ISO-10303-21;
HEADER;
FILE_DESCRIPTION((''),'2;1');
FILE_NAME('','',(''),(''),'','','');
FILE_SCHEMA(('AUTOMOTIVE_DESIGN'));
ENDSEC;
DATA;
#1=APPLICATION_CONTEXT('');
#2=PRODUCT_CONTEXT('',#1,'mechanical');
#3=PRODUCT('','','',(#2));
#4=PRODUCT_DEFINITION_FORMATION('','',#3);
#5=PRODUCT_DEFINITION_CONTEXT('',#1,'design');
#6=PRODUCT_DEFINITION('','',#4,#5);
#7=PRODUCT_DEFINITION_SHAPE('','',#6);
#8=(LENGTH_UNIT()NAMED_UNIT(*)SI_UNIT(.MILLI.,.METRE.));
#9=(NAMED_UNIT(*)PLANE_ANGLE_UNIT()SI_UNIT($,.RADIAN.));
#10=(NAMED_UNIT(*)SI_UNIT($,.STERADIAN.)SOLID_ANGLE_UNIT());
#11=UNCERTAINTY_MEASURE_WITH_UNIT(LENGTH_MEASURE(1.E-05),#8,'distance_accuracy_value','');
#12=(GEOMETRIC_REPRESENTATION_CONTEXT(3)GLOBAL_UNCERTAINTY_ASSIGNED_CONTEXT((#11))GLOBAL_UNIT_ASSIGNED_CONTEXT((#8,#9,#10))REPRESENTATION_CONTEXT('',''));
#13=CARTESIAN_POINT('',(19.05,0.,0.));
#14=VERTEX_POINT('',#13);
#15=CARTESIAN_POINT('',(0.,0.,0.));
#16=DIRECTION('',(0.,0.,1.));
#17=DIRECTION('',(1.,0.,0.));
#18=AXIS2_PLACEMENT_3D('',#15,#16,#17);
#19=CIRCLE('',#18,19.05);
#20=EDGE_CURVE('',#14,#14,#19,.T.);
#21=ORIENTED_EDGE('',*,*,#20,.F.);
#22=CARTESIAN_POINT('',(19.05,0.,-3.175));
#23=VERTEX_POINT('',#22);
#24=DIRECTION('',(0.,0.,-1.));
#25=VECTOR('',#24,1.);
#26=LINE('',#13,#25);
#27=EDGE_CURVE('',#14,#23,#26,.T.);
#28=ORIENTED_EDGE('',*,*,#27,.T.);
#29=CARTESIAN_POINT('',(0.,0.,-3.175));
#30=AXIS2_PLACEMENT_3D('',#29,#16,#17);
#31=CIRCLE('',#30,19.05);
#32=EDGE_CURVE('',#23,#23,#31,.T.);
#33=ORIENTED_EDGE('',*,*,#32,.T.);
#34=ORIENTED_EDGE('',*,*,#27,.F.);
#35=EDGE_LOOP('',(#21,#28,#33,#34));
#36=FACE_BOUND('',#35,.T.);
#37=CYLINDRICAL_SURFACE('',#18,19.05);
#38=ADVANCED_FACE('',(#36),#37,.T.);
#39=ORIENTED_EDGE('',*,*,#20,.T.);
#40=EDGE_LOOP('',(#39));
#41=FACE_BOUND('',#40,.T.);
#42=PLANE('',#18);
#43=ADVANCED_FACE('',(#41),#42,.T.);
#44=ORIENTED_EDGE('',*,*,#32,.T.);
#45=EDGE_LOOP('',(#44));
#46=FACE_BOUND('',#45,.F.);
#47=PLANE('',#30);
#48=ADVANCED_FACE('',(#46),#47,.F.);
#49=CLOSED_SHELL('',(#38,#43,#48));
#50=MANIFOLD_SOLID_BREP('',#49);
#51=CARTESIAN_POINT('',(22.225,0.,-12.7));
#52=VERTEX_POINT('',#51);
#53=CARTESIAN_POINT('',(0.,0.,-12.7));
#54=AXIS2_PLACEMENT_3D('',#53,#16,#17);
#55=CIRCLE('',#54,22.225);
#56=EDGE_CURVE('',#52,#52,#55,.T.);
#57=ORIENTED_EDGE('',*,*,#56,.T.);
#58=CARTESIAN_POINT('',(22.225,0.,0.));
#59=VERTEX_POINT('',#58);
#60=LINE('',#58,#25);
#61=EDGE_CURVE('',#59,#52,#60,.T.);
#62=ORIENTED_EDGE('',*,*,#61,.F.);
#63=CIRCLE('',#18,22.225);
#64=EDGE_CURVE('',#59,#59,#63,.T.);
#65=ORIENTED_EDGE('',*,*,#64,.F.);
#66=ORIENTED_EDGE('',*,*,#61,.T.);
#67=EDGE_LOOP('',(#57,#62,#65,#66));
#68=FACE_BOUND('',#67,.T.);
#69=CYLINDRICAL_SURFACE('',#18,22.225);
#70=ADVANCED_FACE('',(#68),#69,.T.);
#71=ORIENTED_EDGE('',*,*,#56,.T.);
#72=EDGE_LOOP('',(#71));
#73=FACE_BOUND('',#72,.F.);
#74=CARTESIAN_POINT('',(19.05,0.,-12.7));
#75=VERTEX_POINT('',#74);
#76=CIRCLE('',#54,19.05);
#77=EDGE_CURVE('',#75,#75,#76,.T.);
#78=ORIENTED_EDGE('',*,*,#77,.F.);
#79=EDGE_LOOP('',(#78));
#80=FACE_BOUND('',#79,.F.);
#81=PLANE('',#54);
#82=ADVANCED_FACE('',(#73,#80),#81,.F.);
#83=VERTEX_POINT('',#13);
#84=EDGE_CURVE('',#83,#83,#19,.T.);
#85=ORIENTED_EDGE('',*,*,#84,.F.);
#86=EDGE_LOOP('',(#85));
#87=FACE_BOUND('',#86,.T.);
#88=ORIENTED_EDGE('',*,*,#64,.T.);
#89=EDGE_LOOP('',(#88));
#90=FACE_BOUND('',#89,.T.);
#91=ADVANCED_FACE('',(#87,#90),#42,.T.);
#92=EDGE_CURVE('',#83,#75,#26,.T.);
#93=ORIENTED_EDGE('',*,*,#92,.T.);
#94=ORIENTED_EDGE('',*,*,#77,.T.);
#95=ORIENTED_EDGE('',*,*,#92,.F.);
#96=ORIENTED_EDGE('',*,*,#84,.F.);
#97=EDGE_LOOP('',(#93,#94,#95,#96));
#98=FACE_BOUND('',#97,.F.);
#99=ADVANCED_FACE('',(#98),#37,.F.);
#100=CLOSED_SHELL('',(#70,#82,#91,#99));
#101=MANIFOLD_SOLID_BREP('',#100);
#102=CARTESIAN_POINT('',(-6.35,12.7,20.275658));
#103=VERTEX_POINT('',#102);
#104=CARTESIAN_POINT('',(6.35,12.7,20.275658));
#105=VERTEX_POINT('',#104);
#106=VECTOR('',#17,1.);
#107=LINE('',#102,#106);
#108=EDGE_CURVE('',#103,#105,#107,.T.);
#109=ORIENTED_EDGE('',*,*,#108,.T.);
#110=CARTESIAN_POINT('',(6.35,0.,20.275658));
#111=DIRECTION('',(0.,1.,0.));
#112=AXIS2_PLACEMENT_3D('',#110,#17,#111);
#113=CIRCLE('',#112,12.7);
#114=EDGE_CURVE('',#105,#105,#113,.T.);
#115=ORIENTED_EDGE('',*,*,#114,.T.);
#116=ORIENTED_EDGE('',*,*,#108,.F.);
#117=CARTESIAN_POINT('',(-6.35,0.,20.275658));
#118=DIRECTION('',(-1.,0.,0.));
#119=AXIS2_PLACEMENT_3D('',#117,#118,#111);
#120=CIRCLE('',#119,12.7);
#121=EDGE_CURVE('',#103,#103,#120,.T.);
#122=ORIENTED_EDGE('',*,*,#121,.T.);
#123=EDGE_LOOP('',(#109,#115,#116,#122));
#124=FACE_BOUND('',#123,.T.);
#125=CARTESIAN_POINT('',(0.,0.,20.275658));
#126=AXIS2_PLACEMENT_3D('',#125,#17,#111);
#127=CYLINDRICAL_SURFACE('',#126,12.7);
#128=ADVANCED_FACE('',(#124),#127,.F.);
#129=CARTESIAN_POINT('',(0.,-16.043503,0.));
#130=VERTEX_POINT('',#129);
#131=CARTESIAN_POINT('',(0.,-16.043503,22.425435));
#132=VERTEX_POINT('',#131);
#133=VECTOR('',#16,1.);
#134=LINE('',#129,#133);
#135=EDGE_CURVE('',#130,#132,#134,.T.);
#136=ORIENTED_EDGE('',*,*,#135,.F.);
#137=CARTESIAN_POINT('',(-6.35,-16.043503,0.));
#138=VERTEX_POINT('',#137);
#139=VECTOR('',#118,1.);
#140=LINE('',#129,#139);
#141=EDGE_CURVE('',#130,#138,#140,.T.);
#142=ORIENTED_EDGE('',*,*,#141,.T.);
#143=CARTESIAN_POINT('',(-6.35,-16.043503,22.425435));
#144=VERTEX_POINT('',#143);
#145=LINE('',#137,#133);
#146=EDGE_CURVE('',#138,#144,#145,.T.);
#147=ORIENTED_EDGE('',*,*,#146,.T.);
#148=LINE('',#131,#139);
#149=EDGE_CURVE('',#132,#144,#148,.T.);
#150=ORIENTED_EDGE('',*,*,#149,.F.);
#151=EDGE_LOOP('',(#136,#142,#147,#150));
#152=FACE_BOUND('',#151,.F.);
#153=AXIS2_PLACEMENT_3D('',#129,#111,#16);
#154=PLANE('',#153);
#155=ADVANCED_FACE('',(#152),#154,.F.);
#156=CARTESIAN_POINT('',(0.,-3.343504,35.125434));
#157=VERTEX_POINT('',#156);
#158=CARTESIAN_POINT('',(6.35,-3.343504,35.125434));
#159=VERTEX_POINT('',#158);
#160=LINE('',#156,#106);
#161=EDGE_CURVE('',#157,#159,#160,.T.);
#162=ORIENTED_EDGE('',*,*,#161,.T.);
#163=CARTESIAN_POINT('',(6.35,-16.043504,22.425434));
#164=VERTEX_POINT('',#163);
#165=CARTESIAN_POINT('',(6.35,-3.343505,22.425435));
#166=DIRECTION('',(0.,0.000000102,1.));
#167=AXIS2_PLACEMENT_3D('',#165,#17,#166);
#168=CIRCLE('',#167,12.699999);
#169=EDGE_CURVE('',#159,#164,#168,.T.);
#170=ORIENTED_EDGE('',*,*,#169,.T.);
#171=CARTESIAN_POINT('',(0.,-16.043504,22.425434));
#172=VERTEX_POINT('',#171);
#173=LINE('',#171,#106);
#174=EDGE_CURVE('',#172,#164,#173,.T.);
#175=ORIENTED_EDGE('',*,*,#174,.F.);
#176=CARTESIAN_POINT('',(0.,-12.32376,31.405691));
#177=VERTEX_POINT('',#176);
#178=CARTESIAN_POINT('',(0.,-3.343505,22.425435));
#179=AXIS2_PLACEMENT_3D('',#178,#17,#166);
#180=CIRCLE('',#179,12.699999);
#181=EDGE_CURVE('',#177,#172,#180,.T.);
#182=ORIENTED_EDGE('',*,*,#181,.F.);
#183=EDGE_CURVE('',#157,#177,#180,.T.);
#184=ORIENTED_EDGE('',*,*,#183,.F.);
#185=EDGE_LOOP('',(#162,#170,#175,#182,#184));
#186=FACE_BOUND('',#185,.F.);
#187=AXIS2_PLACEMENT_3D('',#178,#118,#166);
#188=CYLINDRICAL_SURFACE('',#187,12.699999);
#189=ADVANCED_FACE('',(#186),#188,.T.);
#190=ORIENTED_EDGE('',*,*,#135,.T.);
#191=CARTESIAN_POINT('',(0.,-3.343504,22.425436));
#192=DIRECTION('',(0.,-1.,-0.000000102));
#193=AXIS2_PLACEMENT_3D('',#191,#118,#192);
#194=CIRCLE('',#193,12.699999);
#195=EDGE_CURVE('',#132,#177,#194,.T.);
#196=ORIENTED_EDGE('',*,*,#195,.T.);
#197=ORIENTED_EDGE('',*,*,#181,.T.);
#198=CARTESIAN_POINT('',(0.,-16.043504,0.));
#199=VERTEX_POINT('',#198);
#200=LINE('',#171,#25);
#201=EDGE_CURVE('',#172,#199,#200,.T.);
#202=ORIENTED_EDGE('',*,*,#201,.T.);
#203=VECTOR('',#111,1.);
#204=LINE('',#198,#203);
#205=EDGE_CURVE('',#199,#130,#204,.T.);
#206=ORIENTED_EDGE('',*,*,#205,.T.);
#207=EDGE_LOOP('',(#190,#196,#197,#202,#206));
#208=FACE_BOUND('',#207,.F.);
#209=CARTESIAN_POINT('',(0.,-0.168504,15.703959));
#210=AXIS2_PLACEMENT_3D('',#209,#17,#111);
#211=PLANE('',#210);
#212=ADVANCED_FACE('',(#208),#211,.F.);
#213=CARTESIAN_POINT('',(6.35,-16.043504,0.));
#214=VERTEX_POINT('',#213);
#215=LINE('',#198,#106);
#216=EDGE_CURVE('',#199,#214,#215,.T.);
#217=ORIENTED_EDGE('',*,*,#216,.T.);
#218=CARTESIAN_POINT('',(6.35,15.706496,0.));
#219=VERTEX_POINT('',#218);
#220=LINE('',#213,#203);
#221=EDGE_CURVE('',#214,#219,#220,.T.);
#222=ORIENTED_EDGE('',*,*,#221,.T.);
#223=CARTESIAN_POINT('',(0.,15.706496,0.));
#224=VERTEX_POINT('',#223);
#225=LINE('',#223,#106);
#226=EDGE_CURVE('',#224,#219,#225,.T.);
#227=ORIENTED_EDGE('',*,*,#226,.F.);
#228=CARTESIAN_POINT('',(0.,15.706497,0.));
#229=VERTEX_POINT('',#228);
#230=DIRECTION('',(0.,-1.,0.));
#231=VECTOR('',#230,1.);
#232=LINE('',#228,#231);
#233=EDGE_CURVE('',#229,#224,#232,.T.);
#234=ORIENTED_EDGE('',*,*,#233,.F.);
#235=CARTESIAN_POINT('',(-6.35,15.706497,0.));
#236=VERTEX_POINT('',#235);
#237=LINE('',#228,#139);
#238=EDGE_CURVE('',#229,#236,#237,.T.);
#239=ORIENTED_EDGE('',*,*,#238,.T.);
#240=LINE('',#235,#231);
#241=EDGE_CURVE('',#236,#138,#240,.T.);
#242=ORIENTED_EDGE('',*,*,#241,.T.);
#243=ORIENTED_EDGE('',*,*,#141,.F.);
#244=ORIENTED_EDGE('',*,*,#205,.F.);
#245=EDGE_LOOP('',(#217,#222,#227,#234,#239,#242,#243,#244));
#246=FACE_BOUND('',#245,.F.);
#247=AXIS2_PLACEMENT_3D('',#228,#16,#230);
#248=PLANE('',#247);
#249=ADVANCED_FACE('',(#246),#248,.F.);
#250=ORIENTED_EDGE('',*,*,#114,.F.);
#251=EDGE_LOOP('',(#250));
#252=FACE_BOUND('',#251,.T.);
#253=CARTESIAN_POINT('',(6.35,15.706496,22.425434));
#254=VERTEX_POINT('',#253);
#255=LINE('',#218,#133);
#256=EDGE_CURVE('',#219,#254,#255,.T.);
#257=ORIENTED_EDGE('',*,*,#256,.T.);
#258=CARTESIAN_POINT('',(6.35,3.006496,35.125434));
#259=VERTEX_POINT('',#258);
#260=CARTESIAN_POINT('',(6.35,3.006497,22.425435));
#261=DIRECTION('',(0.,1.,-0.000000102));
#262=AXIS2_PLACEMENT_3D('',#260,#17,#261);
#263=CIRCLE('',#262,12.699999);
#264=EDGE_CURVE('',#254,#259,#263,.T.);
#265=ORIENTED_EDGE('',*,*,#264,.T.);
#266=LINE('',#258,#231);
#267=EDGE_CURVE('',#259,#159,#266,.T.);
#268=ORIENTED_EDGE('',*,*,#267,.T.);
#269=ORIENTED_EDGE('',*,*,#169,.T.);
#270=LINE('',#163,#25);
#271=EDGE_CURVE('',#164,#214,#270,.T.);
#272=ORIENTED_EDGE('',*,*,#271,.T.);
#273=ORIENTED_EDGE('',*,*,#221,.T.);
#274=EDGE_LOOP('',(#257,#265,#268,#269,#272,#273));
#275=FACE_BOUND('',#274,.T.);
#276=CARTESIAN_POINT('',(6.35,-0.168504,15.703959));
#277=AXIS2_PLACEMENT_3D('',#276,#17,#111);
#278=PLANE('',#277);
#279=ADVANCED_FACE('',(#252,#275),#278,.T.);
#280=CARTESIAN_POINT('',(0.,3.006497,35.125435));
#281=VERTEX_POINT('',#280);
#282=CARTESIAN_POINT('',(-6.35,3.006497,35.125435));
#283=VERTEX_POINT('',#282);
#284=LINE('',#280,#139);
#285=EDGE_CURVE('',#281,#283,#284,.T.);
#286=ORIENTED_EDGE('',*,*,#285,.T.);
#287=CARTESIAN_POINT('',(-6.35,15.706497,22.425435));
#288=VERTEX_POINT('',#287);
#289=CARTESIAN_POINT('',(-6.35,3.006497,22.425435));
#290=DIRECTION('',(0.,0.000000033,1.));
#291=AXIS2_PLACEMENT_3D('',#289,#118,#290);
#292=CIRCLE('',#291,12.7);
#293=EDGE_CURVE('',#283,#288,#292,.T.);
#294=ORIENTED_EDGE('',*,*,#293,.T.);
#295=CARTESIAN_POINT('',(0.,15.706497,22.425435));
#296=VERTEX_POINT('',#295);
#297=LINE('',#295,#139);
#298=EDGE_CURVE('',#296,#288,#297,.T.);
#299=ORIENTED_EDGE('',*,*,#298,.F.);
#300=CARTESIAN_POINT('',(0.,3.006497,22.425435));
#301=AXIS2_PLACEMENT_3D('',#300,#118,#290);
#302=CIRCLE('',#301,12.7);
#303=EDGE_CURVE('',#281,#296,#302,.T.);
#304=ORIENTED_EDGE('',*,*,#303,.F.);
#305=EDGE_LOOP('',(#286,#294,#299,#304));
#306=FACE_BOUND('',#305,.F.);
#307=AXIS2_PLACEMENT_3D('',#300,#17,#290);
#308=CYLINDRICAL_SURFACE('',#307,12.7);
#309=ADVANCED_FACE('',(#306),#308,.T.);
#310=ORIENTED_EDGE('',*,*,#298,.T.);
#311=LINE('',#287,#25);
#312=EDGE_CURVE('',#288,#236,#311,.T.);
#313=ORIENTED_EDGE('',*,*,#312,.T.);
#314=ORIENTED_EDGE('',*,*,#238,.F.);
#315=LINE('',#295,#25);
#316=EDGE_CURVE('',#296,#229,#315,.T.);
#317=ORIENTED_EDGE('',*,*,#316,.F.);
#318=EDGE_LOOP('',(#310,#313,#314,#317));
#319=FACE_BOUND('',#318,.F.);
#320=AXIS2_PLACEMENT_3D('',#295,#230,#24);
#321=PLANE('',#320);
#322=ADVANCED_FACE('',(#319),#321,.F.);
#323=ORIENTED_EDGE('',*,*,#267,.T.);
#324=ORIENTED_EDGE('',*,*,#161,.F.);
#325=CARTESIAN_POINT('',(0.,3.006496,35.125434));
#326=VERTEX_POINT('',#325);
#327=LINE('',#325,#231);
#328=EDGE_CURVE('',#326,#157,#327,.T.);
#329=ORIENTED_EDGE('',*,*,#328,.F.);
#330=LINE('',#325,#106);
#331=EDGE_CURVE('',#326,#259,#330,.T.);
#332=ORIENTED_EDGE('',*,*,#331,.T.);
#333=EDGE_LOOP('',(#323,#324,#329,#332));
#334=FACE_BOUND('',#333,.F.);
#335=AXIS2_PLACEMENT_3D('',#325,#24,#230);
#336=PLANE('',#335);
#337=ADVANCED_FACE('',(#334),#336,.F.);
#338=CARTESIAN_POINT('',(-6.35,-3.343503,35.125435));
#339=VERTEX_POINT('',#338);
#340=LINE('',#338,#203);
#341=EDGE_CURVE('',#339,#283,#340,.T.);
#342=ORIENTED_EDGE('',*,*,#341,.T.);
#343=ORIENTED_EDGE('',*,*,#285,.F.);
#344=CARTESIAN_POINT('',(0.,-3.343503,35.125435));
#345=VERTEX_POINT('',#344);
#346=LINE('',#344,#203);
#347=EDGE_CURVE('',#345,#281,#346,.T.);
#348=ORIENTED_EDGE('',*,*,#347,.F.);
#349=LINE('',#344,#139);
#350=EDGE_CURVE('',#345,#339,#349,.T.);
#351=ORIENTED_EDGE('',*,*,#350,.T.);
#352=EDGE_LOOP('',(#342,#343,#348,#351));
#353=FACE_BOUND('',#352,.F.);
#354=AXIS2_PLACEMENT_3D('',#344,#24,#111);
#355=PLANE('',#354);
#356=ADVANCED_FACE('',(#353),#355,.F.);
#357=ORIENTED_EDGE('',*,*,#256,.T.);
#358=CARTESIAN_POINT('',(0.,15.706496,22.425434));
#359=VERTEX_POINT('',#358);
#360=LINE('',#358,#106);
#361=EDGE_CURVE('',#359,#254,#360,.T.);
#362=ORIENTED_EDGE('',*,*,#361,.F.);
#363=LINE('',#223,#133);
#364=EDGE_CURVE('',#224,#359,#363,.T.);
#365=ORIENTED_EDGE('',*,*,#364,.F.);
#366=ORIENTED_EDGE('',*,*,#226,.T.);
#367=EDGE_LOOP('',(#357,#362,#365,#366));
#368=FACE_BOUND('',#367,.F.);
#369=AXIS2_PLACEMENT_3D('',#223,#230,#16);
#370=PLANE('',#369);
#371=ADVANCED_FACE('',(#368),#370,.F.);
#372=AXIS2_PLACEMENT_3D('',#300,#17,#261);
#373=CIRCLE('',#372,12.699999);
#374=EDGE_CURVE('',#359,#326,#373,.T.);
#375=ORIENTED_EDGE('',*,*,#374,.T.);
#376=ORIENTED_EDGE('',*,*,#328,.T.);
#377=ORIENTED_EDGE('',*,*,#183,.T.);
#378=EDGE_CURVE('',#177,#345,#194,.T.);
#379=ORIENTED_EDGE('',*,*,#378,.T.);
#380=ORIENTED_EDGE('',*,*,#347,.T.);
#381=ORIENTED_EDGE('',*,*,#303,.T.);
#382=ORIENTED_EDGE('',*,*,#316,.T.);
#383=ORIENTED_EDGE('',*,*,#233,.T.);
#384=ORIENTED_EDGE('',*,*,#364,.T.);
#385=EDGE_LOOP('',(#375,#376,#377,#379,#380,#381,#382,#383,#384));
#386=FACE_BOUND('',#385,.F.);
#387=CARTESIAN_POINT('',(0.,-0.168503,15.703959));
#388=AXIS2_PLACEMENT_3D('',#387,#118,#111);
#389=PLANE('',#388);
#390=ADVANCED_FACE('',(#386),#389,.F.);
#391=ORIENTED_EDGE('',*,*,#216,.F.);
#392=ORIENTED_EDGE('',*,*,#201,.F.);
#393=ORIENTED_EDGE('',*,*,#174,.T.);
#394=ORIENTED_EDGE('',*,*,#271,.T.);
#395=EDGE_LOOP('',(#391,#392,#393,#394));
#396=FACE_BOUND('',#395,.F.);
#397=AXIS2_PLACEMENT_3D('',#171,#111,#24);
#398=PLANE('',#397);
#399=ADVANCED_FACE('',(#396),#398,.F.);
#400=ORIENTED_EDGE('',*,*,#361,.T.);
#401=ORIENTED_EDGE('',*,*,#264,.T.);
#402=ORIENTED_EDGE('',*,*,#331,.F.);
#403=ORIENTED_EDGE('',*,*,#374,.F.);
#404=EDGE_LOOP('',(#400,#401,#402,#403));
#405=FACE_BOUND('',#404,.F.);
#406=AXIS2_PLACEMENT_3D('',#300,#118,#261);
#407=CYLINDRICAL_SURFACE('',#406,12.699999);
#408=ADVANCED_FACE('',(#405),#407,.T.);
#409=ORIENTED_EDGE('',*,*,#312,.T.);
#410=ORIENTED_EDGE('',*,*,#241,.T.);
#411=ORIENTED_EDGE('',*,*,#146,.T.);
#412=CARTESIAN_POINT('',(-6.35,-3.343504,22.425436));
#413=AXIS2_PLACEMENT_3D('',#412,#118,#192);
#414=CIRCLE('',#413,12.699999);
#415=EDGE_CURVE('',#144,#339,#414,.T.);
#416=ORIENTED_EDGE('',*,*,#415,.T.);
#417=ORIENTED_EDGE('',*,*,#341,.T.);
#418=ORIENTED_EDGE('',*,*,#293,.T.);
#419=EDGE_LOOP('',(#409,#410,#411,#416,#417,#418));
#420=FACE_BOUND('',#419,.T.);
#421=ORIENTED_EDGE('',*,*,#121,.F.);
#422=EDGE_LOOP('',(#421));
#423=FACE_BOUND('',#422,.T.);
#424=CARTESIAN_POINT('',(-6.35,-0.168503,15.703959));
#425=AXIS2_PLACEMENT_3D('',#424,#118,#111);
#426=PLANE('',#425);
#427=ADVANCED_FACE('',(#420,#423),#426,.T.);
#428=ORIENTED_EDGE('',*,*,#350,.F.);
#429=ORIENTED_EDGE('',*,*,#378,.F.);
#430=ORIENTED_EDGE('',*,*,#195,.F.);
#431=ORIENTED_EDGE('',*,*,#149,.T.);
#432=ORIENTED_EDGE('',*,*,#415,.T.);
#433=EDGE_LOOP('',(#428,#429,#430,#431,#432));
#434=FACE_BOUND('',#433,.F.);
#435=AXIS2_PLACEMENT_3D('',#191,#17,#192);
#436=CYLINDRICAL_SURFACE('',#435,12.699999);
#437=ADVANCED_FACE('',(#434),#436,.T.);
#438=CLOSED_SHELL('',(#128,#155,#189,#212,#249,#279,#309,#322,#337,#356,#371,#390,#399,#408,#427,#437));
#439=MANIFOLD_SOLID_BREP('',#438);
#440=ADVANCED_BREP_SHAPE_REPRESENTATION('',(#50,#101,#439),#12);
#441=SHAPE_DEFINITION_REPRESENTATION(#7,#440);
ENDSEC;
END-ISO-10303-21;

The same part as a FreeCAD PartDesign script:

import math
import FreeCAD as App
import Part
import Sketcher
from FreeCAD import Vector
Q = App.Units.Quantity

doc = App.newDocument("Part")
body = doc.addObject("PartDesign::Body", "Body")

# Sketch on YZ plane
sketch1 = doc.addObject("Sketcher::SketchObject", "Sketch")
body.addObject(sketch1)
sketch1.AttachmentSupport = (doc.YZ_Plane, [""])
sketch1.MapMode = "FlatFace"
sketch1.addGeometry([
    Part.LineSegment(Vector(-16, 0, 0), Vector(16, 0, 0)),  # 0
    Part.LineSegment(Vector(16, 0, 0), Vector(16, 22, 0)),  # 1
    Part.ArcOfCircle(Part.Circle(Vector(3, 22, 0), Vector(0, 0, 1), 13), math.radians(0), math.radians(90)),  # 2
    Part.LineSegment(Vector(3, 35, 0), Vector(-3, 35, 0)),  # 3
    Part.ArcOfCircle(Part.Circle(Vector(-3, 22, 0), Vector(0, 0, 1), 13), math.radians(90), math.radians(180)),  # 4
    Part.LineSegment(Vector(-16, 22, 0), Vector(-16, 0, 0)),  # 5
    Part.Circle(Vector(0, 20, 0), Vector(0, 0, 1), 13),  # 6
], False)
sketch1.addConstraint([
    Sketcher.Constraint("Coincident", 0, 2, 1, 1),
    Sketcher.Constraint("Tangent", 1, 2, 2, 1),
    Sketcher.Constraint("Tangent", 2, 2, 3, 1),
    Sketcher.Constraint("Tangent", 3, 2, 4, 1),
    Sketcher.Constraint("Tangent", 4, 2, 5, 1),
    Sketcher.Constraint("Coincident", 5, 2, 0, 1),
    Sketcher.Constraint("Horizontal", 0),
    Sketcher.Constraint("Vertical", 1),
    Sketcher.Constraint("Horizontal", 3),
    Sketcher.Constraint("Vertical", 5),
    Sketcher.Constraint("Equal", 2, 4),
    Sketcher.Constraint("Equal", 4, 6),
    Sketcher.Constraint("PointOnObject", 6, 3, -2),
    Sketcher.Constraint("PointOnObject", 0, 2, -1),
    Sketcher.Constraint("Diameter", 6, Q("1 in")),
    Sketcher.Constraint("DistanceX", 0, 1, 0, 2, Q("1.25 in")),
    Sketcher.Constraint("DistanceY", 1, 1, 1, 2, 22.425434),
    Sketcher.Constraint("DistanceY", -1, 1, 6, 3, 20.275658),
    Sketcher.Constraint("DistanceX", -1, 1, 2, 3, 3.006497),
])
pad1 = doc.addObject("PartDesign::Pad", "Pad")
body.addObject(pad1)
pad1.Profile = sketch1
pad1.Length = Q("0.25 in")

# Sketch on YZ plane
sketch2 = doc.addObject("Sketcher::SketchObject", "Sketch001")
body.addObject(sketch2)
sketch2.AttachmentSupport = (doc.YZ_Plane, [""])
sketch2.MapMode = "FlatFace"
sketch2.addGeometry([
    Part.LineSegment(Vector(16, 0, 0), Vector(-16, 0, 0)),  # 0
    Part.LineSegment(Vector(-16, 0, 0), Vector(-16, 22, 0)),  # 1
    Part.ArcOfCircle(Part.Circle(Vector(-3, 22, 0), Vector(0, 0, 1), 13), math.radians(90), math.radians(180)),  # 2
    Part.LineSegment(Vector(-3, 35, 0), Vector(3, 35, 0)),  # 3
    Part.ArcOfCircle(Part.Circle(Vector(3, 22, 0), Vector(0, 0, 1), 13), math.radians(0), math.radians(90)),  # 4
    Part.LineSegment(Vector(16, 22, 0), Vector(16, 0, 0)),  # 5
    Part.Circle(Vector(0, 20, 0), Vector(0, 0, 1), 13),  # 6
], False)
sketch2.addConstraint([
    Sketcher.Constraint("Coincident", 0, 2, 1, 1),
    Sketcher.Constraint("Tangent", 1, 2, 2, 2),
    Sketcher.Constraint("Tangent", 2, 1, 3, 1),
    Sketcher.Constraint("Tangent", 3, 2, 4, 2),
    Sketcher.Constraint("Tangent", 4, 1, 5, 1),
    Sketcher.Constraint("Coincident", 5, 2, 0, 1),
    Sketcher.Constraint("Horizontal", 0),
    Sketcher.Constraint("Vertical", 1),
    Sketcher.Constraint("Horizontal", 3),
    Sketcher.Constraint("Vertical", 5),
    Sketcher.Constraint("Equal", 2, 4),
    Sketcher.Constraint("Equal", 4, 6),
    Sketcher.Constraint("PointOnObject", 6, 3, -2),
    Sketcher.Constraint("PointOnObject", 0, 2, -1),
    Sketcher.Constraint("Diameter", 6, Q("1 in")),
    Sketcher.Constraint("DistanceX", 0, 2, 0, 1, Q("1.25 in")),
    Sketcher.Constraint("DistanceY", 1, 1, 1, 2, 22.425435),
    Sketcher.Constraint("DistanceY", -1, 1, 6, 3, 20.275658),
    Sketcher.Constraint("DistanceX", 2, 3, -1, 1, 3.343504),
])
pad2 = doc.addObject("PartDesign::Pad", "Pad001")
body.addObject(pad2)
pad2.Profile = sketch2
pad2.Length = Q("0.25 in")
pad2.Reversed = True
body2 = doc.addObject("PartDesign::Body", "Body001")

# Sketch on XY plane
sketch3 = doc.addObject("Sketcher::SketchObject", "Sketch002")
body2.addObject(sketch3)
sketch3.AttachmentSupport = (doc.getObject("XY_Plane001"), [""])
sketch3.MapMode = "FlatFace"
sketch3.addGeometry([
    Part.Circle(Vector(0, 0, 0), Vector(0, 0, 1), 22),
    Part.Circle(Vector(0, 0, 0), Vector(0, 0, 1), 19),
], False)
sketch3.addConstraint([
    Sketcher.Constraint("Coincident", 0, 3, -1, 1),
    Sketcher.Constraint("Coincident", 1, 3, -1, 1),
    Sketcher.Constraint("Diameter", 1, Q("1.5 in")),
    Sketcher.Constraint("Diameter", 0, Q("1.75 in")),
])
pad3 = doc.addObject("PartDesign::Pad", "Pad002")
body2.addObject(pad3)
pad3.Profile = sketch3
pad3.Length = Q("0.5 in")
pad3.Reversed = True
body3 = doc.addObject("PartDesign::Body", "Body002")

# Sketch on XY plane
sketch4 = doc.addObject("Sketcher::SketchObject", "Sketch003")
body3.addObject(sketch4)
sketch4.AttachmentSupport = (doc.getObject("XY_Plane002"), [""])
sketch4.MapMode = "FlatFace"
sketch4.addGeometry(Part.Circle(Vector(0, 0, 0), Vector(0, 0, 1), 19), False)
sketch4.addConstraint([
    Sketcher.Constraint("Coincident", 0, 3, -1, 1),
    Sketcher.Constraint("Diameter", 0, Q("1.5 in")),
])
pad4 = doc.addObject("PartDesign::Pad", "Pad003")
body3.addObject(pad4)
pad4.Profile = sketch4
pad4.Length = Q("0.125 in")
pad4.Reversed = True

doc.recompute()
